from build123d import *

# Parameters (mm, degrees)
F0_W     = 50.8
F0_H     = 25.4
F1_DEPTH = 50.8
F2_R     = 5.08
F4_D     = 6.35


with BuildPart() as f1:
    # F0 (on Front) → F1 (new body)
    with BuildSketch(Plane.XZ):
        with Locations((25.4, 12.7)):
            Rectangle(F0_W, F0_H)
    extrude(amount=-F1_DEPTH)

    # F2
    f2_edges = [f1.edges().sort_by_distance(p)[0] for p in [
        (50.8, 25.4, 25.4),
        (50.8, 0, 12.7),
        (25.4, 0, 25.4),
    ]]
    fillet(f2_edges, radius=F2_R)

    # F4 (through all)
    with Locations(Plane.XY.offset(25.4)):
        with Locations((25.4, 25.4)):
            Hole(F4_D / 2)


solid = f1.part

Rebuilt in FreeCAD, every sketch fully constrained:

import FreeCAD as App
import Part
import Sketcher
Q = App.Units.Quantity


def edges_at(feature, points):
    """Names of the edges that pass closest to the given points."""
    edges = feature.Shape.Edges
    near = lambda p: min(range(len(edges)), key=lambda i: edges[i].distToShape(Part.Vertex(*p))[0])
    return sorted({f"Edge{near(p) + 1}" for p in points})


def add_polygon(sketch, points):
    """Adds a closed chain of lines whose ends are joined by coincident constraints."""
    first, n = sketch.GeometryCount, len(points)
    for a, b in zip(points, points[1:] + points[:1]):
        sketch.addGeometry(Part.LineSegment(App.Vector(*a, 0), App.Vector(*b, 0)), False)
    for i in range(n):
        sketch.addConstraint(Sketcher.Constraint("Coincident", first + i, 2, first + (i + 1) % n, 1))

doc = App.newDocument("Part")
body = doc.addObject("PartDesign::Body", "Body")

# Sketch on XZ plane
sketch1 = doc.addObject("Sketcher::SketchObject", "Sketch")
body.addObject(sketch1)
sketch1.AttachmentSupport = (doc.XZ_Plane, [""])
sketch1.MapMode = "FlatFace"
add_polygon(sketch1, [(0, 25), (0, 0), (51, 0), (51, 25)])  # lines 0-3
sketch1.addConstraint(Sketcher.Constraint("Vertical", 0))
sketch1.addConstraint(Sketcher.Constraint("Horizontal", 1))
sketch1.addConstraint(Sketcher.Constraint("Vertical", 2))
sketch1.addConstraint(Sketcher.Constraint("Horizontal", 3))
sketch1.addConstraint(Sketcher.Constraint("Coincident", 0, 2, -1, 1))
sketch1.addConstraint(Sketcher.Constraint("DistanceX", 1, 1, 1, 2, Q("2 in")))
sketch1.addConstraint(Sketcher.Constraint("DistanceY", 0, 2, 0, 1, Q("1 in")))
pad1 = doc.addObject("PartDesign::Pad", "Pad")
body.addObject(pad1)
pad1.Profile = sketch1
pad1.Length = Q("2 in")
pad1.Reversed = True
doc.recompute()

fillet = doc.addObject("PartDesign::Fillet", "Fillet")
body.addObject(fillet)
fillet.Base = (pad1, edges_at(pad1, [(50.8, 25.4, 25.4), (50.8, 0, 12.7), (25.4, 0, 25.4)]))
fillet.Radius = Q("0.2 in")

# Sketch on XY plane
sketch2 = doc.addObject("Sketcher::SketchObject", "Sketch001")
body.addObject(sketch2)
sketch2.AttachmentSupport = (doc.XY_Plane, [""])
sketch2.MapMode = "FlatFace"
sketch2.AttachmentOffset = App.Placement(App.Vector(0, 0, 1 * 25.4), App.Rotation())
sketch2.addGeometry(Part.Circle(App.Vector(25.4, 25.4, 0), App.Vector(0, 0, 1), 3.2), False)
sketch2.addConstraint(Sketcher.Constraint("Diameter", 0, Q("0.25 in")))
sketch2.addConstraint(Sketcher.Constraint("DistanceX", -1, 1, 0, 3, Q("1 in")))
sketch2.addConstraint(Sketcher.Constraint("DistanceY", -1, 1, 0, 3, Q("1 in")))
doc.recompute()
hole = doc.addObject("PartDesign::Hole", "Hole")
body.addObject(hole)
hole.Profile = sketch2
hole.ThreadType = "None"
hole.Diameter = Q("0.25 in")
hole.DepthType = "ThroughAll"

doc.recompute()
